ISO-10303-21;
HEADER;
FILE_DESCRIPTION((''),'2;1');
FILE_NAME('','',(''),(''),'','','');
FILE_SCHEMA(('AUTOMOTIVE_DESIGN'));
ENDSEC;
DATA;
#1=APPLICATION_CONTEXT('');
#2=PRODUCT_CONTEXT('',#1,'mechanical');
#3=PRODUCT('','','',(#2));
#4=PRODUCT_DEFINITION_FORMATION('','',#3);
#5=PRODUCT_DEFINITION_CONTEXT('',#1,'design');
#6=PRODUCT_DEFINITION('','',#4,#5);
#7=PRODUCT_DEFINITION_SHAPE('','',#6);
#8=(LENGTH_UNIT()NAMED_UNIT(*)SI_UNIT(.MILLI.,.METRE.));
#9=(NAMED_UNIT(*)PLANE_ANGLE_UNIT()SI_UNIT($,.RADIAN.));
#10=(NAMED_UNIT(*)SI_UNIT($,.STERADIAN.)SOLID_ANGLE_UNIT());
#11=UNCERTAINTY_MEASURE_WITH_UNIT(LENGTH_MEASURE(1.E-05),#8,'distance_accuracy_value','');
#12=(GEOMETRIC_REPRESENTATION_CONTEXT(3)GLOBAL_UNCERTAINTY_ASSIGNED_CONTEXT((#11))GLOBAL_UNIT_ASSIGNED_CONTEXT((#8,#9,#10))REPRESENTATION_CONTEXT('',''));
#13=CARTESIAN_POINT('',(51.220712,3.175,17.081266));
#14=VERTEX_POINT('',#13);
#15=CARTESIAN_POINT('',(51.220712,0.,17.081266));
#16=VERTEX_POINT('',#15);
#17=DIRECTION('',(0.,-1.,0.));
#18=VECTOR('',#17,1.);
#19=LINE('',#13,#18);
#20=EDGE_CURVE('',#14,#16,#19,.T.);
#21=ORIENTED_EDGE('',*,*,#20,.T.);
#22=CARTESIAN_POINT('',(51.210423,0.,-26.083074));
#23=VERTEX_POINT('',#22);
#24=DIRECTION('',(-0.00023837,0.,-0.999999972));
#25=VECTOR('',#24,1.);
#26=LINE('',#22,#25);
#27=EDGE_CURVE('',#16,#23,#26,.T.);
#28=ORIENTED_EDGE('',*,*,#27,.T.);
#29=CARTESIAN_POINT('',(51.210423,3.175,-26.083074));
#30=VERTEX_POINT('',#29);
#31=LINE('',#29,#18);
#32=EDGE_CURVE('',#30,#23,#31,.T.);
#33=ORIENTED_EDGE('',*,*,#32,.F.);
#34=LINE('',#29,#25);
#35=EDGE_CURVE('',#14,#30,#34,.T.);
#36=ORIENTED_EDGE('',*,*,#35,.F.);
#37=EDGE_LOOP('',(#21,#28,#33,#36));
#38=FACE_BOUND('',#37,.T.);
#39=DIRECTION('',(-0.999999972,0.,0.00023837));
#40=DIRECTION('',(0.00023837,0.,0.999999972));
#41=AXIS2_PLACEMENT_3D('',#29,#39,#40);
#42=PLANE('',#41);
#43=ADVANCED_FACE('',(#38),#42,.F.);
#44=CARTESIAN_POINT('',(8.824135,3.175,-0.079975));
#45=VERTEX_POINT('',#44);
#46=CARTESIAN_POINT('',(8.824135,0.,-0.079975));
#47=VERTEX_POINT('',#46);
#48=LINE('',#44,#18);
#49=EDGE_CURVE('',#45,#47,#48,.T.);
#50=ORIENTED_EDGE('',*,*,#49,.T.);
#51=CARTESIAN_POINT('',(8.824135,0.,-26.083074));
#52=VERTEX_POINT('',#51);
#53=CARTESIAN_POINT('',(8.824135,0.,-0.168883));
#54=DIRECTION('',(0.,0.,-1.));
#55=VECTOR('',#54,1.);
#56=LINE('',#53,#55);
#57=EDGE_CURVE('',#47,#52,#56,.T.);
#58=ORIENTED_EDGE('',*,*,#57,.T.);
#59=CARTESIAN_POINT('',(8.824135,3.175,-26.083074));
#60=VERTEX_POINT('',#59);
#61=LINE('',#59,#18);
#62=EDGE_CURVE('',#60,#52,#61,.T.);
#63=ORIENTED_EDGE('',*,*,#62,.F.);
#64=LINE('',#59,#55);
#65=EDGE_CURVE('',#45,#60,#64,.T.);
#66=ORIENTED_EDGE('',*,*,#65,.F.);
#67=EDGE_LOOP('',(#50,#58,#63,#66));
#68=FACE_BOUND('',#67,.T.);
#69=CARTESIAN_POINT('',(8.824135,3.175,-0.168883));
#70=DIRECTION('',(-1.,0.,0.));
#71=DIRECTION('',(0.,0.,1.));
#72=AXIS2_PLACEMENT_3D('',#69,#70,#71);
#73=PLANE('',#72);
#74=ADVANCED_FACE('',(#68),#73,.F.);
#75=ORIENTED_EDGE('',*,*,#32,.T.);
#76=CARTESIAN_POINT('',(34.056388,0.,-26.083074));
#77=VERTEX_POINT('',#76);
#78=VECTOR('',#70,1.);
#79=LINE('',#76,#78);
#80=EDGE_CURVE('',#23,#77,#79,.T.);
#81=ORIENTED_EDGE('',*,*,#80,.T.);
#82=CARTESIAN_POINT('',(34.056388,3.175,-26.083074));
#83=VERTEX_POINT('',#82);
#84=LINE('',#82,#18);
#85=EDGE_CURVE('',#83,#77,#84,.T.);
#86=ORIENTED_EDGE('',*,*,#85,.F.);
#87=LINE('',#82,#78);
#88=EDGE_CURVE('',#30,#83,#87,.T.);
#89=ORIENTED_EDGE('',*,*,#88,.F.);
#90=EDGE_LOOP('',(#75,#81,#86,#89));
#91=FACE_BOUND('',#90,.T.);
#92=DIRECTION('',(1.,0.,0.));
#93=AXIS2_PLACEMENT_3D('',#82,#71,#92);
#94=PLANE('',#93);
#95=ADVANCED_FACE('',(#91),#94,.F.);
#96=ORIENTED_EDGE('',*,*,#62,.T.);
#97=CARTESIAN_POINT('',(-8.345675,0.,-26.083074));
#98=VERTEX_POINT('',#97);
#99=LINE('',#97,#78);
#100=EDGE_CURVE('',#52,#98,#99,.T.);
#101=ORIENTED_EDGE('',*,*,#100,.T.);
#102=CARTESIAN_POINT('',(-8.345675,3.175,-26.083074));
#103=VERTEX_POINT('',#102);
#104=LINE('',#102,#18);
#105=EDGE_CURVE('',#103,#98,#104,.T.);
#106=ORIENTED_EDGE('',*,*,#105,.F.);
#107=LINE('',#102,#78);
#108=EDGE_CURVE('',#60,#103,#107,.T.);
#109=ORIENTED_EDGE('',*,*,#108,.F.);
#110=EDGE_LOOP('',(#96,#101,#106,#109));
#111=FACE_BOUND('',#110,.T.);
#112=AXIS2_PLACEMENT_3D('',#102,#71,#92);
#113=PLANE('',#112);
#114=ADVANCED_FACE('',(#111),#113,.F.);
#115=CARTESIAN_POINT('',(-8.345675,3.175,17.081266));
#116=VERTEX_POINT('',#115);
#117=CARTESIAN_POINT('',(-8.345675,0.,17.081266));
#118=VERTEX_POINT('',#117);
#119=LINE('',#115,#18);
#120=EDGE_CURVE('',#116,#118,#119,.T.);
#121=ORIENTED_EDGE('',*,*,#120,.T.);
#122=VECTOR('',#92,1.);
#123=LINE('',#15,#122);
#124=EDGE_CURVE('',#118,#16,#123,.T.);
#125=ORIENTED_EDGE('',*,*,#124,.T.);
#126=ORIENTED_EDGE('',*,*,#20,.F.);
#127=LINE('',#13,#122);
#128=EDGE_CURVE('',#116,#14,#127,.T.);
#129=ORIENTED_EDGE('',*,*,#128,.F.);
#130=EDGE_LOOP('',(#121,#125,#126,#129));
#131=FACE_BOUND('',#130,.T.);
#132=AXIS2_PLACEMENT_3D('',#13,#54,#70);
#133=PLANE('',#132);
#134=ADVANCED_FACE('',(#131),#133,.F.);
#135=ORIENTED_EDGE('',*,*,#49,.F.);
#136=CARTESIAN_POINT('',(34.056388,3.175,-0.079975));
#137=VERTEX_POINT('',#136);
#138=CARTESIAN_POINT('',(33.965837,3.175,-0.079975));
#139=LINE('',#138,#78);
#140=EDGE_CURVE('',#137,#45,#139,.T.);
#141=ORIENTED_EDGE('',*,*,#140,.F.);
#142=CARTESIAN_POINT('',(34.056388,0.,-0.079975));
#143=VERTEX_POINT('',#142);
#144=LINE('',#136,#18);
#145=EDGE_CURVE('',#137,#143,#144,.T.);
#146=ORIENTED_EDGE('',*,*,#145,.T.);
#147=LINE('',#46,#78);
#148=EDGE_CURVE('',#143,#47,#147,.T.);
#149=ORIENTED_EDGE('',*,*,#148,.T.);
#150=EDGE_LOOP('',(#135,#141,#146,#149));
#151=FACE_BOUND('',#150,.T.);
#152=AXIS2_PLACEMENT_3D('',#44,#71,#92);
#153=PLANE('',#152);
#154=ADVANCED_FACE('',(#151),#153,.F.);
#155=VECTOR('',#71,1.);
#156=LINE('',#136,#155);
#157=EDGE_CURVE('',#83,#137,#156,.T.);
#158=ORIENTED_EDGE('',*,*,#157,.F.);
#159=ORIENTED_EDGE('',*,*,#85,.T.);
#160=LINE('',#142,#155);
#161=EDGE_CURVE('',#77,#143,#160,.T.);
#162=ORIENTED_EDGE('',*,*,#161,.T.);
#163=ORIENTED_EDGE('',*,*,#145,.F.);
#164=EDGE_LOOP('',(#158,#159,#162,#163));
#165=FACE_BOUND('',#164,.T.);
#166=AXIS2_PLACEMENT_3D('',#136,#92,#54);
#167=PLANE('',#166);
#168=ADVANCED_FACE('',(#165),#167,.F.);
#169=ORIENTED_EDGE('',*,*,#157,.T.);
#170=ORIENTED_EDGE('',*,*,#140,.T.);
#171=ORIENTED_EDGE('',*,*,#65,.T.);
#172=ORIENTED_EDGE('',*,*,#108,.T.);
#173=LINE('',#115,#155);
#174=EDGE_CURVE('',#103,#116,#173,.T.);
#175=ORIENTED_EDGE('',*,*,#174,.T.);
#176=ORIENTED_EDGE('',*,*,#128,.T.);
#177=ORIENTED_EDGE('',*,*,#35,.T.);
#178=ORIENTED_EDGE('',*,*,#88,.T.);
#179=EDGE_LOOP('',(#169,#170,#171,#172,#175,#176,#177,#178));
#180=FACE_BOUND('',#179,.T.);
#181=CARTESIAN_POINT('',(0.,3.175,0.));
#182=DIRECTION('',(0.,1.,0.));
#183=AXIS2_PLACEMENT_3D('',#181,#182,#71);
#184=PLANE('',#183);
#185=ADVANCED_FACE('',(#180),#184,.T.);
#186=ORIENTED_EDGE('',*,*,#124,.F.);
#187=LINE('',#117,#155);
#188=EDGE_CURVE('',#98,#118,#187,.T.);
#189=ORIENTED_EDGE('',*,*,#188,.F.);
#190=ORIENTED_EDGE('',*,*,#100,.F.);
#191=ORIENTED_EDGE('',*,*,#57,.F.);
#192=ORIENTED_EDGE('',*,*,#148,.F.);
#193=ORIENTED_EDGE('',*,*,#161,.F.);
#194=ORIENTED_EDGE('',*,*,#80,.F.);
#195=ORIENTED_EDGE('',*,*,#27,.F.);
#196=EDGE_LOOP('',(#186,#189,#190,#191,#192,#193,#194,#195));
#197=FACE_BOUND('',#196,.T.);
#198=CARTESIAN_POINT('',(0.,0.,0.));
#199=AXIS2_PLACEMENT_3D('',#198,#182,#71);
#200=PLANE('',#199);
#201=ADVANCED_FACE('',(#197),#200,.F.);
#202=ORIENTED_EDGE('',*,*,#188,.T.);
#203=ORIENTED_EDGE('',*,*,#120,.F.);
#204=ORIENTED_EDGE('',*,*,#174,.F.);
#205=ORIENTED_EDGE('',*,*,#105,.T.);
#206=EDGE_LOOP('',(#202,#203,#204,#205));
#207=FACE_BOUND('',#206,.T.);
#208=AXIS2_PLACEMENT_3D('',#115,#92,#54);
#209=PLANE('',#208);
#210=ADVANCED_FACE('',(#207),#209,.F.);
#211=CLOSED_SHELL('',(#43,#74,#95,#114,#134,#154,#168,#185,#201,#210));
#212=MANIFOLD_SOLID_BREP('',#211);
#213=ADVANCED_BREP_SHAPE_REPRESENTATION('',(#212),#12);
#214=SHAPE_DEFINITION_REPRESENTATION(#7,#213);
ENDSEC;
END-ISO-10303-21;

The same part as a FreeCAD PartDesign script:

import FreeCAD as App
import Part
import Sketcher

V = App.Vector

doc = App.newDocument("Part")
params = doc.addObject("Spreadsheet::Sheet", "Params")
for row, (alias, value) in enumerate([
    ("pad1_length", "0.125 in"),
], start=1):
    params.set(f"A{row}", alias)
    params.set(f"B{row}", "=" + value)
    params.setAlias(f"B{row}", alias)

body = doc.addObject("PartDesign::Body", "Body")

sketch1 = doc.addObject("Sketcher::SketchObject", "Sketch")
body.addObject(sketch1)
sketch1.AttachmentSupport = (doc.XZ_Plane, [""])
sketch1.MapMode = "FlatFace"
sketch1.addGeometry(Part.LineSegment(V(9, -26, 0), V(-8, -26, 0)), False)
sketch1.addGeometry(Part.LineSegment(V(-8, -26, 0), V(-8, 17, 0)), False)
sketch1.addGeometry(Part.LineSegment(V(-8, 17, 0), V(51, 17, 0)), False)
sketch1.addGeometry(Part.LineSegment(V(51, 17, 0), V(51, -26, 0)), False)
sketch1.addGeometry(Part.LineSegment(V(51, -26, 0), V(34, -26, 0)), False)
sketch1.addGeometry(Part.LineSegment(V(34, -26, 0), V(34, 0, 0)), False)
sketch1.addGeometry(Part.LineSegment(V(34, 0, 0), V(9, 0, 0)), False)
sketch1.addGeometry(Part.LineSegment(V(9, 0, 0), V(9, -26, 0)), False)
sketch1.addConstraint(Sketcher.Constraint("Coincident", 0, 2, 1, 1))
sketch1.addConstraint(Sketcher.Constraint("Coincident", 1, 2, 2, 1))
sketch1.addConstraint(Sketcher.Constraint("Coincident", 2, 2, 3, 1))
sketch1.addConstraint(Sketcher.Constraint("Coincident", 3, 2, 4, 1))
sketch1.addConstraint(Sketcher.Constraint("Coincident", 4, 2, 5, 1))
sketch1.addConstraint(Sketcher.Constraint("Coincident", 5, 2, 6, 1))
sketch1.addConstraint(Sketcher.Constraint("Coincident", 6, 2, 7, 1))
sketch1.addConstraint(Sketcher.Constraint("Coincident", 7, 2, 0, 1))
sketch1.addConstraint(Sketcher.Constraint("Horizontal", 0))
sketch1.addConstraint(Sketcher.Constraint("Vertical", 1))
sketch1.addConstraint(Sketcher.Constraint("Horizontal", 2))
sketch1.addConstraint(Sketcher.Constraint("Horizontal", 4))
sketch1.addConstraint(Sketcher.Constraint("Vertical", 5))
sketch1.addConstraint(Sketcher.Constraint("Horizontal", 6))
sketch1.addConstraint(Sketcher.Constraint("Vertical", 7))
sketch1.addConstraint(Sketcher.Constraint("Horizontal", 0, 2, 3, 2))
sketch1.addConstraint(Sketcher.Constraint("DistanceY", 5, 1, 5, 2, 26.003099))
sketch1.addConstraint(Sketcher.Constraint("DistanceX", 0, 2, 0, 1, 17.16981))
sketch1.addConstraint(Sketcher.Constraint("DistanceY", 1, 1, 1, 2, 43.16434))
sketch1.addConstraint(Sketcher.Constraint("DistanceX", 0, 2, 3, 2, 59.556098))
sketch1.addConstraint(Sketcher.Constraint("DistanceX", 2, 1, 2, 2, 59.566387))
sketch1.addConstraint(Sketcher.Constraint("DistanceX", 4, 2, 4, 1, 17.154035))
sketch1.addConstraint(Sketcher.Constraint("DistanceX", -1, 1, 4, 2, 34.056388))
sketch1.addConstraint(Sketcher.Constraint("DistanceY", 0, 2, -1, 1, 26.083074))
pad1 = doc.addObject("PartDesign::Pad", "Pad")
body.addObject(pad1)
pad1.Profile = sketch1
pad1.setExpression("Length", "Params.pad1_length")
pad1.Reversed = True

doc.recompute()
